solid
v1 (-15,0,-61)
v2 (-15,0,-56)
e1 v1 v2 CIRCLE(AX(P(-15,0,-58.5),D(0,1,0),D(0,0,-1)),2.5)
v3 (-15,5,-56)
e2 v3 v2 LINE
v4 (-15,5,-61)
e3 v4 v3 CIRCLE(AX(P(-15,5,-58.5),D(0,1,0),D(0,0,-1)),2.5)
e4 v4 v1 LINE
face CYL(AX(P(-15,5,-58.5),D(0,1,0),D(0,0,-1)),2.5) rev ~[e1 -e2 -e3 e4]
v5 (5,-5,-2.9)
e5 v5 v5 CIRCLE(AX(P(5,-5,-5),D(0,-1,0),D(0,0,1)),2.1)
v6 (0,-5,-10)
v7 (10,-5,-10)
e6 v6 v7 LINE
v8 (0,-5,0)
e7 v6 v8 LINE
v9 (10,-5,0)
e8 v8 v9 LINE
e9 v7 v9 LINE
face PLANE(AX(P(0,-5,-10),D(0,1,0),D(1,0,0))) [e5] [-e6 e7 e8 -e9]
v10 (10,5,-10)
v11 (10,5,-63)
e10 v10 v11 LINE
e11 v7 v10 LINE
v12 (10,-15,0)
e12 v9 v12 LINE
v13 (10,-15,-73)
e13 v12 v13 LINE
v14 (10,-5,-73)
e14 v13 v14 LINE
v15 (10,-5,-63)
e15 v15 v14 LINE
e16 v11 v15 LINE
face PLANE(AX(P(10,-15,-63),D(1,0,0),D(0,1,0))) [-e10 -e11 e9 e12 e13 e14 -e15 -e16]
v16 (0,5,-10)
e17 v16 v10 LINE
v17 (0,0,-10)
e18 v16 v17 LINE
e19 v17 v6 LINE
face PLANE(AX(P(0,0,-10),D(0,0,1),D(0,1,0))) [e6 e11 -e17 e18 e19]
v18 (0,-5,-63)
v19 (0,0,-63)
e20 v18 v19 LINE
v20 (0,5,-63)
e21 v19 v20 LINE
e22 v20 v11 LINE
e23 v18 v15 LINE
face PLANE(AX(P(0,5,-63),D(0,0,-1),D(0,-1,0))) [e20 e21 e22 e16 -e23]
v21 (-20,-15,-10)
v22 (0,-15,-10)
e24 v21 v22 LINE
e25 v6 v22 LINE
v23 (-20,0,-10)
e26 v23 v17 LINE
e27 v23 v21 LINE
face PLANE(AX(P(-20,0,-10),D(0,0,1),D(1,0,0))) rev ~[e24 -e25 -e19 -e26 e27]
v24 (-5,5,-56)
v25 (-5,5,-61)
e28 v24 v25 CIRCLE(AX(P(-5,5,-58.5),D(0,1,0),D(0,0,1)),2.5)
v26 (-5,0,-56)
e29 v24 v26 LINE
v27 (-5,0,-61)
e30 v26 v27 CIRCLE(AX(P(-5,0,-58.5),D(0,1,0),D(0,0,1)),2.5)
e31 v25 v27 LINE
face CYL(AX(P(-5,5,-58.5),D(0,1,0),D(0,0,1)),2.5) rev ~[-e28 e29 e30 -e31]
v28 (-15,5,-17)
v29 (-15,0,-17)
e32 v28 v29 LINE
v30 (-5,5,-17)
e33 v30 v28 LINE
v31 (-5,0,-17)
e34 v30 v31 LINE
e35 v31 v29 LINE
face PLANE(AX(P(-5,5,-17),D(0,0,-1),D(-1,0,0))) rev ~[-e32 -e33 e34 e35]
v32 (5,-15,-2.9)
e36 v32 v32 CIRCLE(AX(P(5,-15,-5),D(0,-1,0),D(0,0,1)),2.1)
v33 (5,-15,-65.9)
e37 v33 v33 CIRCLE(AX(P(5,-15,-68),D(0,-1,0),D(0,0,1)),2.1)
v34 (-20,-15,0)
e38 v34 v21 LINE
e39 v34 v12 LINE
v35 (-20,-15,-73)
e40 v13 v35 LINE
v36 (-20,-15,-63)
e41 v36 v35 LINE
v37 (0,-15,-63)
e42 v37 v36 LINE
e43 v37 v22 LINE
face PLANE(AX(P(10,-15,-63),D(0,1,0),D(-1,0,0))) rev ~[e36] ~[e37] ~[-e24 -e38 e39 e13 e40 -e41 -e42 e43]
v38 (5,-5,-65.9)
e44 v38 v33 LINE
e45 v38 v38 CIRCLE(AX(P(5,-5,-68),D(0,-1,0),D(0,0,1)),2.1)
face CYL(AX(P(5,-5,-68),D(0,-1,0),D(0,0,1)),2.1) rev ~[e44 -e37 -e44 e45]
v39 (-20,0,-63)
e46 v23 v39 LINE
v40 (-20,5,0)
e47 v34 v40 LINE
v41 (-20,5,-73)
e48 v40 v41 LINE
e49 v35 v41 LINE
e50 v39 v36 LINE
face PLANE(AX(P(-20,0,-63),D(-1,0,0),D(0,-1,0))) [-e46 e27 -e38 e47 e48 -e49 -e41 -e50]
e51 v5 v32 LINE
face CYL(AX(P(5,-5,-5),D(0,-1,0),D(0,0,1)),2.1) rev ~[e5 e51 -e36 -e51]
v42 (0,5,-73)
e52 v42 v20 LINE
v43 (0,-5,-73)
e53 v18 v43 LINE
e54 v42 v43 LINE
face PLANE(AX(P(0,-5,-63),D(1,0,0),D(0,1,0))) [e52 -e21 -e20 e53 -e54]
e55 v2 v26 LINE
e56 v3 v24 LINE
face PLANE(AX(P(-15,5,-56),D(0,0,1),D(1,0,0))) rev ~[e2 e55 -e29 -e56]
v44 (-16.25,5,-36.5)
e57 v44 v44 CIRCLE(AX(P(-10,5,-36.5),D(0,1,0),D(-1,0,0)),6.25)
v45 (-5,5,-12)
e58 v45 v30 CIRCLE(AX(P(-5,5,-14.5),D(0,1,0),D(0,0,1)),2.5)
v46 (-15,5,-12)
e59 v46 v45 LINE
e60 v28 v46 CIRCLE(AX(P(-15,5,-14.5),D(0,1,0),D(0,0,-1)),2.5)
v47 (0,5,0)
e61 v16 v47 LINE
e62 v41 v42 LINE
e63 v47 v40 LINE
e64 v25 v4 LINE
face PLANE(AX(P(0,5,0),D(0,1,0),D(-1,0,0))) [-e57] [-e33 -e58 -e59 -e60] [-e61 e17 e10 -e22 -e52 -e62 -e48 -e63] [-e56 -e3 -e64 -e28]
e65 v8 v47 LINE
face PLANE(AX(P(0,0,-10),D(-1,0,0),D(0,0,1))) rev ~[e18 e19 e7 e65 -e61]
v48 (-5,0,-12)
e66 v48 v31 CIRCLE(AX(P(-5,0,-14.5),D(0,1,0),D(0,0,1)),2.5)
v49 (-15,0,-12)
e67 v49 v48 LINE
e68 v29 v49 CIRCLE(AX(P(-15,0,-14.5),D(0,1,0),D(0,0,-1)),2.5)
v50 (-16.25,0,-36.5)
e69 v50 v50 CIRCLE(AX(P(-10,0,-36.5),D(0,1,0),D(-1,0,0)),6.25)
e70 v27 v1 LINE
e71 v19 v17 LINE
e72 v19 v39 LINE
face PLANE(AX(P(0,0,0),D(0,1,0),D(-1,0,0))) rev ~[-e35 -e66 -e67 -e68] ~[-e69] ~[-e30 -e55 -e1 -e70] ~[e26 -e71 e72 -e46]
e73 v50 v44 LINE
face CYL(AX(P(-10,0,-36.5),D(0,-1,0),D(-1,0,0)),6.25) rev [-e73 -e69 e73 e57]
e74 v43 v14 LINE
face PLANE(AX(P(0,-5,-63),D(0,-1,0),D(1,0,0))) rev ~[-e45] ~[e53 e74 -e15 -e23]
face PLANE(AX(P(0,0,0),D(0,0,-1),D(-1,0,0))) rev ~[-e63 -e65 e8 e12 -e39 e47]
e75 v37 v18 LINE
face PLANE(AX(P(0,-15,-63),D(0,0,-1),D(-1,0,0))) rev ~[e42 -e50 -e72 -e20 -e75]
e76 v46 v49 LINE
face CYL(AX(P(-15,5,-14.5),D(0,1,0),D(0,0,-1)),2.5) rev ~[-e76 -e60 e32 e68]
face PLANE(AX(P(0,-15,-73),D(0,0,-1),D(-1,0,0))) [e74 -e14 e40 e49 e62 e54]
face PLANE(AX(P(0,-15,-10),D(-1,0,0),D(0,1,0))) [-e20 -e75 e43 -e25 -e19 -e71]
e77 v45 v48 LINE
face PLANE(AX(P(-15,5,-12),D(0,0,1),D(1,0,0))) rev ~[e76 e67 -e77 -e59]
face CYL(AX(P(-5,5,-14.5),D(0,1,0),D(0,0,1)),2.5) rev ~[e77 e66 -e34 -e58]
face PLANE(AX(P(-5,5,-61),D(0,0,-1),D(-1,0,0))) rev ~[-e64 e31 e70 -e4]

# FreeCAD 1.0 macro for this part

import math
import FreeCAD as App
import Part
import Sketcher
Q = App.Units.Quantity


def add_polygon(sketch, points):
    """Adds a closed chain of lines whose ends are joined by coincident constraints."""
    first, n = sketch.GeometryCount, len(points)
    for a, b in zip(points, points[1:] + points[:1]):
        sketch.addGeometry(Part.LineSegment(App.Vector(*a, 0), App.Vector(*b, 0)), False)
    for i in range(n):
        sketch.addConstraint(Sketcher.Constraint("Coincident", first + i, 2, first + (i + 1) % n, 1))

doc = App.newDocument("Part")
body = doc.addObject("PartDesign::Body", "Body")

sketch1 = body.newObject("Sketcher::SketchObject", "Sketch")
sketch1.AttachmentSupport = (doc.getObject("XZ_Plane"), [""])
sketch1.MapMode = "FlatFace"
add_polygon(sketch1, [(-20, 0), (0, 0), (0, -73), (-20, -73)])
sketch1.addGeometry(Part.Circle(App.Vector(-10, -36, 0), App.Vector(0, 0, 1), 6), False)
sketch1.addConstraint(Sketcher.Constraint("Horizontal", 0))
sketch1.addConstraint(Sketcher.Constraint("Vertical", 1))
sketch1.addConstraint(Sketcher.Constraint("Horizontal", 2))
sketch1.addConstraint(Sketcher.Constraint("Vertical", 3))
sketch1.addConstraint(Sketcher.Constraint("Coincident", 0, 2, -1, 1))
sketch1.addConstraint(Sketcher.Constraint("Diameter", 4, Q("12.5 mm")))
sketch1.addConstraint(Sketcher.Constraint("DistanceX", 0, 1, 0, 2, Q("20 mm")))
sketch1.addConstraint(Sketcher.Constraint("DistanceY", 1, 2, 1, 1, Q("73 mm")))
sketch1.addConstraint(Sketcher.Constraint("DistanceX", 4, 3, -1, 1, Q("10 mm")))
sketch1.addConstraint(Sketcher.Constraint("DistanceY", 4, 3, -1, 1, Q("36.5 mm")))
pad1 = body.newObject("PartDesign::Pad", "Pad")
pad1.Profile = sketch1
pad1.Length = 5
pad1.Reversed = True

sketch2 = body.newObject("Sketcher::SketchObject", "Sketch001")
sketch2.AttachmentSupport = (doc.getObject("YZ_Plane"), [""])
sketch2.MapMode = "FlatFace"
add_polygon(sketch2, [(5, -63), (5, -10), (-15, -10), (-15, -63)])
sketch2.addConstraint(Sketcher.Constraint("Vertical", 0))
sketch2.addConstraint(Sketcher.Constraint("Horizontal", 1))
sketch2.addConstraint(Sketcher.Constraint("Vertical", 2))
sketch2.addConstraint(Sketcher.Constraint("Horizontal", 3))
sketch2.addConstraint(Sketcher.Constraint("DistanceY", 0, 2, -1, 1, Q("10 mm")))
sketch2.addConstraint(Sketcher.Constraint("DistanceX", 1, 2, -1, 1, Q("15 mm")))
sketch2.addConstraint(Sketcher.Constraint("DistanceX", 1, 2, 1, 1, Q("20 mm")))
sketch2.addConstraint(Sketcher.Constraint("DistanceY", 0, 1, 0, 2, Q("53 mm")))
pad2 = body.newObject("PartDesign::Pad", "Pad001")
pad2.Profile = sketch2
pad2.Length = 10

sketch3 = body.newObject("Sketcher::SketchObject", "Sketch002")
sketch3.AttachmentSupport = (doc.getObject("XY_Plane"), [""])
sketch3.MapMode = "FlatFace"
sketch3.AttachmentOffset = App.Placement(App.Vector(0, 0, -10), App.Rotation())
add_polygon(sketch3, [(10, -5), (0, -5), (0, -15), (10, -15)])
sketch3.addConstraint(Sketcher.Constraint("Horizontal", 0))
sketch3.addConstraint(Sketcher.Constraint("Vertical", 1))
sketch3.addConstraint(Sketcher.Constraint("Horizontal", 2))
sketch3.addConstraint(Sketcher.Constraint("Vertical", 3))
sketch3.addConstraint(Sketcher.Constraint("PointOnObject", 0, 2, -2))
sketch3.addConstraint(Sketcher.Constraint("Equal", 2, 1))
sketch3.addConstraint(Sketcher.Constraint("DistanceX", 0, 2, 0, 1, Q("10 mm")))
sketch3.addConstraint(Sketcher.Constraint("DistanceY", 0, 2, -1, 1, Q("5 mm")))
pad3 = body.newObject("PartDesign::Pad", "Pad002")
pad3.Profile = sketch3
pad3.Length = 10

sketch4 = body.newObject("Sketcher::SketchObject", "Sketch003")
sketch4.AttachmentSupport = (doc.getObject("XZ_Plane"), [""])
sketch4.MapMode = "FlatFace"
add_polygon(sketch4, [(-20, 0), (-20, -10), (0, -10), (0, 0)])
sketch4.addConstraint(Sketcher.Constraint("Vertical", 0))
sketch4.addConstraint(Sketcher.Constraint("Horizontal", 1))
sketch4.addConstraint(Sketcher.Constraint("Vertical", 2))
sketch4.addConstraint(Sketcher.Constraint("Horizontal", 3))
sketch4.addConstraint(Sketcher.Constraint("Coincident", 2, 2, -1, 1))
sketch4.addConstraint(Sketcher.Constraint("DistanceY", 0, 2, 0, 1, Q("10 mm")))
sketch4.addConstraint(Sketcher.Constraint("DistanceX", 1, 1, 1, 2, Q("20 mm")))
pad4 = body.newObject("PartDesign::Pad", "Pad003")
pad4.Profile = sketch4
pad4.Length = 15

sketch5 = body.newObject("Sketcher::SketchObject", "Sketch004")
sketch5.AttachmentSupport = (doc.getObject("XY_Plane"), [""])
sketch5.MapMode = "FlatFace"
sketch5.AttachmentOffset = App.Placement(App.Vector(0, 0, -63), App.Rotation())
add_polygon(sketch5, [(10, -5), (10, -15), (-20, -15), (-20, 0), (0, 0), (0, -5)])
sketch5.addConstraint(Sketcher.Constraint("Vertical", 0))
sketch5.addConstraint(Sketcher.Constraint("Horizontal", 1))
sketch5.addConstraint(Sketcher.Constraint("Vertical", 2))
sketch5.addConstraint(Sketcher.Constraint("Horizontal", 3))
sketch5.addConstraint(Sketcher.Constraint("Vertical", 4))
sketch5.addConstraint(Sketcher.Constraint("Horizontal", 5))
sketch5.addConstraint(Sketcher.Constraint("Coincident", 3, 2, -1, 1))
sketch5.addConstraint(Sketcher.Constraint("Equal", 5, 0))
sketch5.addConstraint(Sketcher.Constraint("DistanceY", 2, 1, 2, 2, Q("15 mm")))
sketch5.addConstraint(Sketcher.Constraint("DistanceX", 1, 2, 1, 1, Q("30 mm")))
sketch5.addConstraint(Sketcher.Constraint("DistanceX", 3, 1, 3, 2, Q("20 mm")))
pad5 = body.newObject("PartDesign::Pad", "Pad004")
pad5.Profile = sketch5
pad5.Length = 10
pad5.Reversed = True

sketch6 = body.newObject("Sketcher::SketchObject", "Sketch005")
sketch6.AttachmentSupport = (doc.getObject("XZ_Plane"), [""])
sketch6.MapMode = "FlatFace"
sketch6.AttachmentOffset = App.Placement(App.Vector(0, 0, -5), App.Rotation())
sketch6.addGeometry(Part.ArcOfCircle(Part.Circle(App.Vector(-5, -58.5, 0), App.Vector(0, 0, 1), 2.5), math.radians(-90), math.radians(90)), False)
sketch6.addGeometry(Part.LineSegment(App.Vector(-5, -61, 0), App.Vector(-15, -61, 0)), False)
sketch6.addGeometry(Part.ArcOfCircle(Part.Circle(App.Vector(-15, -58.5, 0), App.Vector(0, 0, 1), 2.5), math.radians(90), math.radians(270)), False)
sketch6.addGeometry(Part.LineSegment(App.Vector(-15, -56, 0), App.Vector(-5, -56, 0)), False)
sketch6.addGeometry(Part.ArcOfCircle(Part.Circle(App.Vector(-5, -14.5, 0), App.Vector(0, 0, 1), 2.5), math.radians(-90), math.radians(90)), False)
sketch6.addGeometry(Part.LineSegment(App.Vector(-5, -17, 0), App.Vector(-15, -17, 0)), False)
sketch6.addGeometry(Part.ArcOfCircle(Part.Circle(App.Vector(-15, -14.5, 0), App.Vector(0, 0, 1), 2.5), math.radians(90), math.radians(270)), False)
sketch6.addGeometry(Part.LineSegment(App.Vector(-15, -12, 0), App.Vector(-5, -12, 0)), False)
sketch6.addConstraint(Sketcher.Constraint("Tangent", 0, 1, 1, 1))
sketch6.addConstraint(Sketcher.Constraint("Tangent", 1, 2, 2, 2))
sketch6.addConstraint(Sketcher.Constraint("Tangent", 2, 1, 3, 1))
sketch6.addConstraint(Sketcher.Constraint("Tangent", 3, 2, 0, 2))
sketch6.addConstraint(Sketcher.Constraint("Tangent", 4, 1, 5, 1))
sketch6.addConstraint(Sketcher.Constraint("Tangent", 5, 2, 6, 2))
sketch6.addConstraint(Sketcher.Constraint("Tangent", 6, 1, 7, 1))
sketch6.addConstraint(Sketcher.Constraint("Tangent", 7, 2, 4, 2))
sketch6.addConstraint(Sketcher.Constraint("Horizontal", 1))
sketch6.addConstraint(Sketcher.Constraint("Horizontal", 3))
sketch6.addConstraint(Sketcher.Constraint("Horizontal", 5))
sketch6.addConstraint(Sketcher.Constraint("Horizontal", 7))
sketch6.addConstraint(Sketcher.Constraint("Equal", 2, 4))
sketch6.addConstraint(Sketcher.Constraint("Vertical", 0, 3, 4, 3))
sketch6.addConstraint(Sketcher.Constraint("Vertical", 2, 3, 6, 3))
sketch6.addConstraint(Sketcher.Constraint("Radius", 0, Q("2.5 mm")))
sketch6.addConstraint(Sketcher.Constraint("DistanceX", 1, 2, 1, 1, Q("10 mm")))
sketch6.addConstraint(Sketcher.Constraint("DistanceX", 0, 3, -1, 1, Q("5 mm")))
sketch6.addConstraint(Sketcher.Constraint("DistanceY", 6, 1, -1, 1, Q("12 mm")))
sketch6.addConstraint(Sketcher.Constraint("DistanceY", 0, 1, -1, 1, Q("61 mm")))
pocket1 = body.newObject("PartDesign::Pocket", "Pocket")
pocket1.Profile = sketch6
pocket1.Length = 10
pocket1.Reversed = True

sketch7 = body.newObject("Sketcher::SketchObject", "Sketch006")
sketch7.AttachmentSupport = (doc.getObject("XZ_Plane"), [""])
sketch7.MapMode = "FlatFace"
sketch7.AttachmentOffset = App.Placement(App.Vector(0, 0, 5), App.Rotation())
sketch7.addGeometry(Part.Circle(App.Vector(5, -5, 0), App.Vector(0, 0, 1), 2.1), False)
sketch7.addConstraint(Sketcher.Constraint("Diameter", 0, Q("4.2 mm")))
sketch7.addConstraint(Sketcher.Constraint("DistanceX", -1, 1, 0, 3, Q("5 mm")))
sketch7.addConstraint(Sketcher.Constraint("DistanceY", 0, 3, -1, 1, Q("5 mm")))
doc.recompute()
hole = body.newObject("PartDesign::Hole", "Hole")
hole.Profile = sketch7
hole.ThreadType = "None"
hole.Diameter = 4.2
hole.DepthType = "ThroughAll"
hole.Reversed = True

sketch8 = body.newObject("Sketcher::SketchObject", "Sketch007")
sketch8.AttachmentSupport = (doc.getObject("XZ_Plane"), [""])
sketch8.MapMode = "FlatFace"
sketch8.AttachmentOffset = App.Placement(App.Vector(0, 0, 5), App.Rotation())
sketch8.addGeometry(Part.Circle(App.Vector(5, -68, 0), App.Vector(0, 0, 1), 2.1), False)
sketch8.addConstraint(Sketcher.Constraint("Diameter", 0, Q("4.2 mm")))
sketch8.addConstraint(Sketcher.Constraint("DistanceX", -1, 1, 0, 3, Q("5 mm")))
sketch8.addConstraint(Sketcher.Constraint("DistanceY", 0, 3, -1, 1, Q("68 mm")))
doc.recompute()
hole2 = body.newObject("PartDesign::Hole", "Hole001")
hole2.Profile = sketch8
hole2.ThreadType = "None"
hole2.Diameter = 4.2
hole2.DepthType = "ThroughAll"
hole2.Reversed = True

doc.recompute()
